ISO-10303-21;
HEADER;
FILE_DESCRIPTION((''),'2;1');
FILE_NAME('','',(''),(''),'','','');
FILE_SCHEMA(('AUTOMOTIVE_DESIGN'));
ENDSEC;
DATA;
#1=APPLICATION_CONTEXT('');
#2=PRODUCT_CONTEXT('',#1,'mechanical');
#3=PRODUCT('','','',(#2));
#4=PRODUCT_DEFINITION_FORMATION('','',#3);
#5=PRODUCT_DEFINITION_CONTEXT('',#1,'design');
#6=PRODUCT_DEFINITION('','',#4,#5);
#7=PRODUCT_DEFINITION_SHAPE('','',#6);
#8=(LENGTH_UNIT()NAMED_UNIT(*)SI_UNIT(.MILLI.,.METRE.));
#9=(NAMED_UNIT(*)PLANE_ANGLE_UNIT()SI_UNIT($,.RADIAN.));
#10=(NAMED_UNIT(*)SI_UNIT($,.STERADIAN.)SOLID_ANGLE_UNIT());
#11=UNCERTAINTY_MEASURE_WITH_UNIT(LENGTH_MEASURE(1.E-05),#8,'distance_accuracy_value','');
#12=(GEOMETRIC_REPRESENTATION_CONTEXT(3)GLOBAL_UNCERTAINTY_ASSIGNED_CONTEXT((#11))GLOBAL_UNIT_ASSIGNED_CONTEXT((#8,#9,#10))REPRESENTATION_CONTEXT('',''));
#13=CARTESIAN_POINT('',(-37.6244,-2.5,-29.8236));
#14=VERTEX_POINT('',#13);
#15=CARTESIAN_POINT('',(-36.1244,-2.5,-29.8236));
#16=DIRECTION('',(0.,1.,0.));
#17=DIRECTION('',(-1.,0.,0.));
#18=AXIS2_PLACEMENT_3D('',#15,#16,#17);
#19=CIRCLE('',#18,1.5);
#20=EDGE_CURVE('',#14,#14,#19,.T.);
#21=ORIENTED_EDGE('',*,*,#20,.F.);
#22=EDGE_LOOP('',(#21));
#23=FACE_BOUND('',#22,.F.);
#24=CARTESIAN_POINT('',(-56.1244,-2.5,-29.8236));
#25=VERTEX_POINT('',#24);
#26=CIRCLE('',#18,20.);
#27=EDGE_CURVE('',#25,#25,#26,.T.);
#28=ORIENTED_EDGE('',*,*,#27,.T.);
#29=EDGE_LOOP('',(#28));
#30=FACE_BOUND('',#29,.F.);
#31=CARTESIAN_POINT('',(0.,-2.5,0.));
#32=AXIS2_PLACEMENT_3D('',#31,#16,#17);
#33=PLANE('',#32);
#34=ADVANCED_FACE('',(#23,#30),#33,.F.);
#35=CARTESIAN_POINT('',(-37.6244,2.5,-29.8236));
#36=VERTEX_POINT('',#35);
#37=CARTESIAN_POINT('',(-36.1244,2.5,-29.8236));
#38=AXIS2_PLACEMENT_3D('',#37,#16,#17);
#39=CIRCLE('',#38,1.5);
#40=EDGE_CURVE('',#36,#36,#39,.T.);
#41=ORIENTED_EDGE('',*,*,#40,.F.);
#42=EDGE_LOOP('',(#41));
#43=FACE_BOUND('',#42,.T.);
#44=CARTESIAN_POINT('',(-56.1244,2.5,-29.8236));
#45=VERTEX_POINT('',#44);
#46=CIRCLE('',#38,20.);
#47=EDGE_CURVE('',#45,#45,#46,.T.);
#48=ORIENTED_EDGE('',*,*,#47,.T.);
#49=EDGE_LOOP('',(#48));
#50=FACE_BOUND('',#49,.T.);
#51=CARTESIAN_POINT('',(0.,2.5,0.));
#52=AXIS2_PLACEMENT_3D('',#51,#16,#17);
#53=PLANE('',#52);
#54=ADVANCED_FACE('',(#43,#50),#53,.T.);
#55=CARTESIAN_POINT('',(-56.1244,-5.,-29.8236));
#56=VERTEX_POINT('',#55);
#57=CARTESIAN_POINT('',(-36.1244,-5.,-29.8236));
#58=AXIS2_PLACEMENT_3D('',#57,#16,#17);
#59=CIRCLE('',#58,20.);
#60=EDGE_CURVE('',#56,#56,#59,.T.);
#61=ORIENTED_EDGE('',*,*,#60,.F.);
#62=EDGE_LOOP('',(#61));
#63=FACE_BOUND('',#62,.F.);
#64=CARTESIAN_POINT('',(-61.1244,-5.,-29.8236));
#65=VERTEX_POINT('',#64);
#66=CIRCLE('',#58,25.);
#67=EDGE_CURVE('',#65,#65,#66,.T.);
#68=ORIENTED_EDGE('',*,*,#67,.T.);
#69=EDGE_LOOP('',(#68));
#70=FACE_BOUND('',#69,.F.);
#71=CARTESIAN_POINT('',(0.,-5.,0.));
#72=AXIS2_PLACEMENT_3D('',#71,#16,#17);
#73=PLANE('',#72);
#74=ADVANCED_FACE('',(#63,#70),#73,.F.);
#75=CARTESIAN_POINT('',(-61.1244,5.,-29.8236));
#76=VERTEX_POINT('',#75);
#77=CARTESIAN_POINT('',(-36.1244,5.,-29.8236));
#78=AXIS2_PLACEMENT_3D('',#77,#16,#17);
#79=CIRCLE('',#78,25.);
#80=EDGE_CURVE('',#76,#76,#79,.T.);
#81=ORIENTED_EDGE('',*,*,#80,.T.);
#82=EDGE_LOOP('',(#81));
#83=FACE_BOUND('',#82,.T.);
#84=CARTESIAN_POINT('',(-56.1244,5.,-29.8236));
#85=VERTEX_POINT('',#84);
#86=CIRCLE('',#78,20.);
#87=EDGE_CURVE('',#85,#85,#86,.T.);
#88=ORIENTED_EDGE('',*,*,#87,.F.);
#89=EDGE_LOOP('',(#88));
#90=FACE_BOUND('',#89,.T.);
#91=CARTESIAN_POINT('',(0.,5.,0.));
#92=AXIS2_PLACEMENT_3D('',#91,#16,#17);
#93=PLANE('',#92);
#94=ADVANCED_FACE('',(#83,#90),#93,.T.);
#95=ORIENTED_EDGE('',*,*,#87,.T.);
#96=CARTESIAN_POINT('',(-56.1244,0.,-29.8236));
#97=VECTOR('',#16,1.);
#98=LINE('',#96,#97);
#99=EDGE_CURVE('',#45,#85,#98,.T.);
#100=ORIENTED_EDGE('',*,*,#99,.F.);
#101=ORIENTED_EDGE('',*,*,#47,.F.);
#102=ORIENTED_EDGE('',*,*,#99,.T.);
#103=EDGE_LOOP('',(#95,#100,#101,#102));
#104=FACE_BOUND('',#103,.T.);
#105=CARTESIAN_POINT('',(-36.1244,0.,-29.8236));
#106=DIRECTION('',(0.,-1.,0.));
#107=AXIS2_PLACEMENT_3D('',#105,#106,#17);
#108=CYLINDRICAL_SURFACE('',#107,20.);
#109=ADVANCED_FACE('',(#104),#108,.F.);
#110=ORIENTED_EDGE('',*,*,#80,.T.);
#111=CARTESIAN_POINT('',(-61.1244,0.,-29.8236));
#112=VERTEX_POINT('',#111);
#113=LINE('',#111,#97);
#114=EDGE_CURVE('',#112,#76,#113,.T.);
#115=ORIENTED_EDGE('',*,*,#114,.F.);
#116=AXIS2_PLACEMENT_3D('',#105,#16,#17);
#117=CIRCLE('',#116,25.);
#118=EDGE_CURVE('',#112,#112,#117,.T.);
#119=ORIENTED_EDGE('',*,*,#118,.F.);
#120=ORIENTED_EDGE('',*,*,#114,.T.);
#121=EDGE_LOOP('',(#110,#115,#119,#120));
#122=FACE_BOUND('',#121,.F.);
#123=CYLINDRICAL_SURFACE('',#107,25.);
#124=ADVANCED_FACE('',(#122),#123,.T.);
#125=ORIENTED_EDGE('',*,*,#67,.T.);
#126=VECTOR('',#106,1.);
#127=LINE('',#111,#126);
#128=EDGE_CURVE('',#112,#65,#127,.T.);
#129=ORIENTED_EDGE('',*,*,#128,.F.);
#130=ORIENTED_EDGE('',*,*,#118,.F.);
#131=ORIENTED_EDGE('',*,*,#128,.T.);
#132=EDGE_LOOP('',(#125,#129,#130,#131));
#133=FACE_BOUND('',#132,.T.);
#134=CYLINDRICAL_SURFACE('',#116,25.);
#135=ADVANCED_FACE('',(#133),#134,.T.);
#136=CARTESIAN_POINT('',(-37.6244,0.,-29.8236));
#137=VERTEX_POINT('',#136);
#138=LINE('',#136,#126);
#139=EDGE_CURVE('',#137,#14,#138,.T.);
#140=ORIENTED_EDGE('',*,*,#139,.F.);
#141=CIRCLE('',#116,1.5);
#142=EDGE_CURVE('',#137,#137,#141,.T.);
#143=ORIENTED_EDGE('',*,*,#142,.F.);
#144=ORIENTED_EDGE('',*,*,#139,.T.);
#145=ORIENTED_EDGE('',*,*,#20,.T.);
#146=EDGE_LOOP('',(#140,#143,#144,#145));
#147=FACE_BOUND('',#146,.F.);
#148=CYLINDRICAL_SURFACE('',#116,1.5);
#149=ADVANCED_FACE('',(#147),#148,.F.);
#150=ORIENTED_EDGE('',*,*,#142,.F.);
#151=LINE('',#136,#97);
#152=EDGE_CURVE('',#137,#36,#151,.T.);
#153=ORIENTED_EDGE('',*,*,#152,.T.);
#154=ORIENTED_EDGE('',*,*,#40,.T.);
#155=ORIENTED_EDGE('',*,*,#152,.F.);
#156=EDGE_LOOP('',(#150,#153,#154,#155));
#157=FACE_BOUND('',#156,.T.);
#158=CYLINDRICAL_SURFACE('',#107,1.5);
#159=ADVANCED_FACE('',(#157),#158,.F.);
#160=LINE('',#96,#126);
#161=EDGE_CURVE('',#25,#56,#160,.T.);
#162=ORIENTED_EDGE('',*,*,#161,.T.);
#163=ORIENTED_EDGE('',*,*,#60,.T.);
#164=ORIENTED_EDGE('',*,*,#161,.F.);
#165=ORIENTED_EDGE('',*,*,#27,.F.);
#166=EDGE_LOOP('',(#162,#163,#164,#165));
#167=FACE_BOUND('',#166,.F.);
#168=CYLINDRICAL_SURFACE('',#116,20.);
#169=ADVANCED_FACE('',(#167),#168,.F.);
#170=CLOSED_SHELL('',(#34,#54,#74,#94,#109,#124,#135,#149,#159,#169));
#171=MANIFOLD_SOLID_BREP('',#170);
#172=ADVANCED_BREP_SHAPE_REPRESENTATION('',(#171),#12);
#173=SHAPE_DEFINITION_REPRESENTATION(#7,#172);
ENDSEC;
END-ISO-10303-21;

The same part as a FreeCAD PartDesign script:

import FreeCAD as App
import Part
import Sketcher

V = App.Vector
Q = App.Units.Quantity

doc = App.newDocument("Part")
body = doc.addObject("PartDesign::Body", "Body")

# Sketch on XZ plane
sketch1 = body.newObject("Sketcher::SketchObject", "Sketch")
sketch1.AttachmentSupport = (doc.getObject("XZ_Plane"), [""])
sketch1.MapMode = "FlatFace"
sketch1.addGeometry(Part.Circle(V(-36, -30, 0), V(0, 0, 1), 25), False)
sketch1.addGeometry(Part.Circle(V(-36, -30, 0), V(0, 0, 1), 20), False)
sketch1.addConstraint(Sketcher.Constraint("Coincident", 1, 3, 0, 3))
sketch1.addConstraint(Sketcher.Constraint("Diameter", 0, Q("50 mm")))
sketch1.addConstraint(Sketcher.Constraint("Diameter", 1, Q("40 mm")))
sketch1.addConstraint(Sketcher.Constraint("DistanceX", 0, 3, -1, 1, Q("36.1244 mm")))
sketch1.addConstraint(Sketcher.Constraint("DistanceY", 0, 3, -1, 1, Q("29.8236 mm")))
pad1 = body.newObject("PartDesign::Pad", "Pad")
pad1.Profile = sketch1
pad1.Type = "TwoLengths"
pad1.Length = 5
pad1.Length2 = 5
pad1.Reversed = True

# Sketch on XZ plane
sketch2 = body.newObject("Sketcher::SketchObject", "Sketch001")
sketch2.AttachmentSupport = (doc.getObject("XZ_Plane"), [""])
sketch2.MapMode = "FlatFace"
sketch2.addGeometry(Part.Circle(V(-36.1, -29.8, 0), V(0, 0, 1), 20), False)
sketch2.addGeometry(Part.Circle(V(-36.1, -29.8, 0), V(0, 0, 1), 1.5), False)
sketch2.addConstraint(Sketcher.Constraint("Coincident", 1, 3, 0, 3))
sketch2.addConstraint(Sketcher.Constraint("Diameter", 0, Q("40 mm")))
sketch2.addConstraint(Sketcher.Constraint("Diameter", 1, Q("3 mm")))
sketch2.addConstraint(Sketcher.Constraint("DistanceX", 0, 3, -1, 1, Q("36.1244 mm")))
sketch2.addConstraint(Sketcher.Constraint("DistanceY", 0, 3, -1, 1, Q("29.8236 mm")))
pad2 = body.newObject("PartDesign::Pad", "Pad001")
pad2.Profile = sketch2
pad2.Type = "TwoLengths"
pad2.Length = 2.5
pad2.Length2 = 2.5
pad2.Reversed = True

doc.recompute()
